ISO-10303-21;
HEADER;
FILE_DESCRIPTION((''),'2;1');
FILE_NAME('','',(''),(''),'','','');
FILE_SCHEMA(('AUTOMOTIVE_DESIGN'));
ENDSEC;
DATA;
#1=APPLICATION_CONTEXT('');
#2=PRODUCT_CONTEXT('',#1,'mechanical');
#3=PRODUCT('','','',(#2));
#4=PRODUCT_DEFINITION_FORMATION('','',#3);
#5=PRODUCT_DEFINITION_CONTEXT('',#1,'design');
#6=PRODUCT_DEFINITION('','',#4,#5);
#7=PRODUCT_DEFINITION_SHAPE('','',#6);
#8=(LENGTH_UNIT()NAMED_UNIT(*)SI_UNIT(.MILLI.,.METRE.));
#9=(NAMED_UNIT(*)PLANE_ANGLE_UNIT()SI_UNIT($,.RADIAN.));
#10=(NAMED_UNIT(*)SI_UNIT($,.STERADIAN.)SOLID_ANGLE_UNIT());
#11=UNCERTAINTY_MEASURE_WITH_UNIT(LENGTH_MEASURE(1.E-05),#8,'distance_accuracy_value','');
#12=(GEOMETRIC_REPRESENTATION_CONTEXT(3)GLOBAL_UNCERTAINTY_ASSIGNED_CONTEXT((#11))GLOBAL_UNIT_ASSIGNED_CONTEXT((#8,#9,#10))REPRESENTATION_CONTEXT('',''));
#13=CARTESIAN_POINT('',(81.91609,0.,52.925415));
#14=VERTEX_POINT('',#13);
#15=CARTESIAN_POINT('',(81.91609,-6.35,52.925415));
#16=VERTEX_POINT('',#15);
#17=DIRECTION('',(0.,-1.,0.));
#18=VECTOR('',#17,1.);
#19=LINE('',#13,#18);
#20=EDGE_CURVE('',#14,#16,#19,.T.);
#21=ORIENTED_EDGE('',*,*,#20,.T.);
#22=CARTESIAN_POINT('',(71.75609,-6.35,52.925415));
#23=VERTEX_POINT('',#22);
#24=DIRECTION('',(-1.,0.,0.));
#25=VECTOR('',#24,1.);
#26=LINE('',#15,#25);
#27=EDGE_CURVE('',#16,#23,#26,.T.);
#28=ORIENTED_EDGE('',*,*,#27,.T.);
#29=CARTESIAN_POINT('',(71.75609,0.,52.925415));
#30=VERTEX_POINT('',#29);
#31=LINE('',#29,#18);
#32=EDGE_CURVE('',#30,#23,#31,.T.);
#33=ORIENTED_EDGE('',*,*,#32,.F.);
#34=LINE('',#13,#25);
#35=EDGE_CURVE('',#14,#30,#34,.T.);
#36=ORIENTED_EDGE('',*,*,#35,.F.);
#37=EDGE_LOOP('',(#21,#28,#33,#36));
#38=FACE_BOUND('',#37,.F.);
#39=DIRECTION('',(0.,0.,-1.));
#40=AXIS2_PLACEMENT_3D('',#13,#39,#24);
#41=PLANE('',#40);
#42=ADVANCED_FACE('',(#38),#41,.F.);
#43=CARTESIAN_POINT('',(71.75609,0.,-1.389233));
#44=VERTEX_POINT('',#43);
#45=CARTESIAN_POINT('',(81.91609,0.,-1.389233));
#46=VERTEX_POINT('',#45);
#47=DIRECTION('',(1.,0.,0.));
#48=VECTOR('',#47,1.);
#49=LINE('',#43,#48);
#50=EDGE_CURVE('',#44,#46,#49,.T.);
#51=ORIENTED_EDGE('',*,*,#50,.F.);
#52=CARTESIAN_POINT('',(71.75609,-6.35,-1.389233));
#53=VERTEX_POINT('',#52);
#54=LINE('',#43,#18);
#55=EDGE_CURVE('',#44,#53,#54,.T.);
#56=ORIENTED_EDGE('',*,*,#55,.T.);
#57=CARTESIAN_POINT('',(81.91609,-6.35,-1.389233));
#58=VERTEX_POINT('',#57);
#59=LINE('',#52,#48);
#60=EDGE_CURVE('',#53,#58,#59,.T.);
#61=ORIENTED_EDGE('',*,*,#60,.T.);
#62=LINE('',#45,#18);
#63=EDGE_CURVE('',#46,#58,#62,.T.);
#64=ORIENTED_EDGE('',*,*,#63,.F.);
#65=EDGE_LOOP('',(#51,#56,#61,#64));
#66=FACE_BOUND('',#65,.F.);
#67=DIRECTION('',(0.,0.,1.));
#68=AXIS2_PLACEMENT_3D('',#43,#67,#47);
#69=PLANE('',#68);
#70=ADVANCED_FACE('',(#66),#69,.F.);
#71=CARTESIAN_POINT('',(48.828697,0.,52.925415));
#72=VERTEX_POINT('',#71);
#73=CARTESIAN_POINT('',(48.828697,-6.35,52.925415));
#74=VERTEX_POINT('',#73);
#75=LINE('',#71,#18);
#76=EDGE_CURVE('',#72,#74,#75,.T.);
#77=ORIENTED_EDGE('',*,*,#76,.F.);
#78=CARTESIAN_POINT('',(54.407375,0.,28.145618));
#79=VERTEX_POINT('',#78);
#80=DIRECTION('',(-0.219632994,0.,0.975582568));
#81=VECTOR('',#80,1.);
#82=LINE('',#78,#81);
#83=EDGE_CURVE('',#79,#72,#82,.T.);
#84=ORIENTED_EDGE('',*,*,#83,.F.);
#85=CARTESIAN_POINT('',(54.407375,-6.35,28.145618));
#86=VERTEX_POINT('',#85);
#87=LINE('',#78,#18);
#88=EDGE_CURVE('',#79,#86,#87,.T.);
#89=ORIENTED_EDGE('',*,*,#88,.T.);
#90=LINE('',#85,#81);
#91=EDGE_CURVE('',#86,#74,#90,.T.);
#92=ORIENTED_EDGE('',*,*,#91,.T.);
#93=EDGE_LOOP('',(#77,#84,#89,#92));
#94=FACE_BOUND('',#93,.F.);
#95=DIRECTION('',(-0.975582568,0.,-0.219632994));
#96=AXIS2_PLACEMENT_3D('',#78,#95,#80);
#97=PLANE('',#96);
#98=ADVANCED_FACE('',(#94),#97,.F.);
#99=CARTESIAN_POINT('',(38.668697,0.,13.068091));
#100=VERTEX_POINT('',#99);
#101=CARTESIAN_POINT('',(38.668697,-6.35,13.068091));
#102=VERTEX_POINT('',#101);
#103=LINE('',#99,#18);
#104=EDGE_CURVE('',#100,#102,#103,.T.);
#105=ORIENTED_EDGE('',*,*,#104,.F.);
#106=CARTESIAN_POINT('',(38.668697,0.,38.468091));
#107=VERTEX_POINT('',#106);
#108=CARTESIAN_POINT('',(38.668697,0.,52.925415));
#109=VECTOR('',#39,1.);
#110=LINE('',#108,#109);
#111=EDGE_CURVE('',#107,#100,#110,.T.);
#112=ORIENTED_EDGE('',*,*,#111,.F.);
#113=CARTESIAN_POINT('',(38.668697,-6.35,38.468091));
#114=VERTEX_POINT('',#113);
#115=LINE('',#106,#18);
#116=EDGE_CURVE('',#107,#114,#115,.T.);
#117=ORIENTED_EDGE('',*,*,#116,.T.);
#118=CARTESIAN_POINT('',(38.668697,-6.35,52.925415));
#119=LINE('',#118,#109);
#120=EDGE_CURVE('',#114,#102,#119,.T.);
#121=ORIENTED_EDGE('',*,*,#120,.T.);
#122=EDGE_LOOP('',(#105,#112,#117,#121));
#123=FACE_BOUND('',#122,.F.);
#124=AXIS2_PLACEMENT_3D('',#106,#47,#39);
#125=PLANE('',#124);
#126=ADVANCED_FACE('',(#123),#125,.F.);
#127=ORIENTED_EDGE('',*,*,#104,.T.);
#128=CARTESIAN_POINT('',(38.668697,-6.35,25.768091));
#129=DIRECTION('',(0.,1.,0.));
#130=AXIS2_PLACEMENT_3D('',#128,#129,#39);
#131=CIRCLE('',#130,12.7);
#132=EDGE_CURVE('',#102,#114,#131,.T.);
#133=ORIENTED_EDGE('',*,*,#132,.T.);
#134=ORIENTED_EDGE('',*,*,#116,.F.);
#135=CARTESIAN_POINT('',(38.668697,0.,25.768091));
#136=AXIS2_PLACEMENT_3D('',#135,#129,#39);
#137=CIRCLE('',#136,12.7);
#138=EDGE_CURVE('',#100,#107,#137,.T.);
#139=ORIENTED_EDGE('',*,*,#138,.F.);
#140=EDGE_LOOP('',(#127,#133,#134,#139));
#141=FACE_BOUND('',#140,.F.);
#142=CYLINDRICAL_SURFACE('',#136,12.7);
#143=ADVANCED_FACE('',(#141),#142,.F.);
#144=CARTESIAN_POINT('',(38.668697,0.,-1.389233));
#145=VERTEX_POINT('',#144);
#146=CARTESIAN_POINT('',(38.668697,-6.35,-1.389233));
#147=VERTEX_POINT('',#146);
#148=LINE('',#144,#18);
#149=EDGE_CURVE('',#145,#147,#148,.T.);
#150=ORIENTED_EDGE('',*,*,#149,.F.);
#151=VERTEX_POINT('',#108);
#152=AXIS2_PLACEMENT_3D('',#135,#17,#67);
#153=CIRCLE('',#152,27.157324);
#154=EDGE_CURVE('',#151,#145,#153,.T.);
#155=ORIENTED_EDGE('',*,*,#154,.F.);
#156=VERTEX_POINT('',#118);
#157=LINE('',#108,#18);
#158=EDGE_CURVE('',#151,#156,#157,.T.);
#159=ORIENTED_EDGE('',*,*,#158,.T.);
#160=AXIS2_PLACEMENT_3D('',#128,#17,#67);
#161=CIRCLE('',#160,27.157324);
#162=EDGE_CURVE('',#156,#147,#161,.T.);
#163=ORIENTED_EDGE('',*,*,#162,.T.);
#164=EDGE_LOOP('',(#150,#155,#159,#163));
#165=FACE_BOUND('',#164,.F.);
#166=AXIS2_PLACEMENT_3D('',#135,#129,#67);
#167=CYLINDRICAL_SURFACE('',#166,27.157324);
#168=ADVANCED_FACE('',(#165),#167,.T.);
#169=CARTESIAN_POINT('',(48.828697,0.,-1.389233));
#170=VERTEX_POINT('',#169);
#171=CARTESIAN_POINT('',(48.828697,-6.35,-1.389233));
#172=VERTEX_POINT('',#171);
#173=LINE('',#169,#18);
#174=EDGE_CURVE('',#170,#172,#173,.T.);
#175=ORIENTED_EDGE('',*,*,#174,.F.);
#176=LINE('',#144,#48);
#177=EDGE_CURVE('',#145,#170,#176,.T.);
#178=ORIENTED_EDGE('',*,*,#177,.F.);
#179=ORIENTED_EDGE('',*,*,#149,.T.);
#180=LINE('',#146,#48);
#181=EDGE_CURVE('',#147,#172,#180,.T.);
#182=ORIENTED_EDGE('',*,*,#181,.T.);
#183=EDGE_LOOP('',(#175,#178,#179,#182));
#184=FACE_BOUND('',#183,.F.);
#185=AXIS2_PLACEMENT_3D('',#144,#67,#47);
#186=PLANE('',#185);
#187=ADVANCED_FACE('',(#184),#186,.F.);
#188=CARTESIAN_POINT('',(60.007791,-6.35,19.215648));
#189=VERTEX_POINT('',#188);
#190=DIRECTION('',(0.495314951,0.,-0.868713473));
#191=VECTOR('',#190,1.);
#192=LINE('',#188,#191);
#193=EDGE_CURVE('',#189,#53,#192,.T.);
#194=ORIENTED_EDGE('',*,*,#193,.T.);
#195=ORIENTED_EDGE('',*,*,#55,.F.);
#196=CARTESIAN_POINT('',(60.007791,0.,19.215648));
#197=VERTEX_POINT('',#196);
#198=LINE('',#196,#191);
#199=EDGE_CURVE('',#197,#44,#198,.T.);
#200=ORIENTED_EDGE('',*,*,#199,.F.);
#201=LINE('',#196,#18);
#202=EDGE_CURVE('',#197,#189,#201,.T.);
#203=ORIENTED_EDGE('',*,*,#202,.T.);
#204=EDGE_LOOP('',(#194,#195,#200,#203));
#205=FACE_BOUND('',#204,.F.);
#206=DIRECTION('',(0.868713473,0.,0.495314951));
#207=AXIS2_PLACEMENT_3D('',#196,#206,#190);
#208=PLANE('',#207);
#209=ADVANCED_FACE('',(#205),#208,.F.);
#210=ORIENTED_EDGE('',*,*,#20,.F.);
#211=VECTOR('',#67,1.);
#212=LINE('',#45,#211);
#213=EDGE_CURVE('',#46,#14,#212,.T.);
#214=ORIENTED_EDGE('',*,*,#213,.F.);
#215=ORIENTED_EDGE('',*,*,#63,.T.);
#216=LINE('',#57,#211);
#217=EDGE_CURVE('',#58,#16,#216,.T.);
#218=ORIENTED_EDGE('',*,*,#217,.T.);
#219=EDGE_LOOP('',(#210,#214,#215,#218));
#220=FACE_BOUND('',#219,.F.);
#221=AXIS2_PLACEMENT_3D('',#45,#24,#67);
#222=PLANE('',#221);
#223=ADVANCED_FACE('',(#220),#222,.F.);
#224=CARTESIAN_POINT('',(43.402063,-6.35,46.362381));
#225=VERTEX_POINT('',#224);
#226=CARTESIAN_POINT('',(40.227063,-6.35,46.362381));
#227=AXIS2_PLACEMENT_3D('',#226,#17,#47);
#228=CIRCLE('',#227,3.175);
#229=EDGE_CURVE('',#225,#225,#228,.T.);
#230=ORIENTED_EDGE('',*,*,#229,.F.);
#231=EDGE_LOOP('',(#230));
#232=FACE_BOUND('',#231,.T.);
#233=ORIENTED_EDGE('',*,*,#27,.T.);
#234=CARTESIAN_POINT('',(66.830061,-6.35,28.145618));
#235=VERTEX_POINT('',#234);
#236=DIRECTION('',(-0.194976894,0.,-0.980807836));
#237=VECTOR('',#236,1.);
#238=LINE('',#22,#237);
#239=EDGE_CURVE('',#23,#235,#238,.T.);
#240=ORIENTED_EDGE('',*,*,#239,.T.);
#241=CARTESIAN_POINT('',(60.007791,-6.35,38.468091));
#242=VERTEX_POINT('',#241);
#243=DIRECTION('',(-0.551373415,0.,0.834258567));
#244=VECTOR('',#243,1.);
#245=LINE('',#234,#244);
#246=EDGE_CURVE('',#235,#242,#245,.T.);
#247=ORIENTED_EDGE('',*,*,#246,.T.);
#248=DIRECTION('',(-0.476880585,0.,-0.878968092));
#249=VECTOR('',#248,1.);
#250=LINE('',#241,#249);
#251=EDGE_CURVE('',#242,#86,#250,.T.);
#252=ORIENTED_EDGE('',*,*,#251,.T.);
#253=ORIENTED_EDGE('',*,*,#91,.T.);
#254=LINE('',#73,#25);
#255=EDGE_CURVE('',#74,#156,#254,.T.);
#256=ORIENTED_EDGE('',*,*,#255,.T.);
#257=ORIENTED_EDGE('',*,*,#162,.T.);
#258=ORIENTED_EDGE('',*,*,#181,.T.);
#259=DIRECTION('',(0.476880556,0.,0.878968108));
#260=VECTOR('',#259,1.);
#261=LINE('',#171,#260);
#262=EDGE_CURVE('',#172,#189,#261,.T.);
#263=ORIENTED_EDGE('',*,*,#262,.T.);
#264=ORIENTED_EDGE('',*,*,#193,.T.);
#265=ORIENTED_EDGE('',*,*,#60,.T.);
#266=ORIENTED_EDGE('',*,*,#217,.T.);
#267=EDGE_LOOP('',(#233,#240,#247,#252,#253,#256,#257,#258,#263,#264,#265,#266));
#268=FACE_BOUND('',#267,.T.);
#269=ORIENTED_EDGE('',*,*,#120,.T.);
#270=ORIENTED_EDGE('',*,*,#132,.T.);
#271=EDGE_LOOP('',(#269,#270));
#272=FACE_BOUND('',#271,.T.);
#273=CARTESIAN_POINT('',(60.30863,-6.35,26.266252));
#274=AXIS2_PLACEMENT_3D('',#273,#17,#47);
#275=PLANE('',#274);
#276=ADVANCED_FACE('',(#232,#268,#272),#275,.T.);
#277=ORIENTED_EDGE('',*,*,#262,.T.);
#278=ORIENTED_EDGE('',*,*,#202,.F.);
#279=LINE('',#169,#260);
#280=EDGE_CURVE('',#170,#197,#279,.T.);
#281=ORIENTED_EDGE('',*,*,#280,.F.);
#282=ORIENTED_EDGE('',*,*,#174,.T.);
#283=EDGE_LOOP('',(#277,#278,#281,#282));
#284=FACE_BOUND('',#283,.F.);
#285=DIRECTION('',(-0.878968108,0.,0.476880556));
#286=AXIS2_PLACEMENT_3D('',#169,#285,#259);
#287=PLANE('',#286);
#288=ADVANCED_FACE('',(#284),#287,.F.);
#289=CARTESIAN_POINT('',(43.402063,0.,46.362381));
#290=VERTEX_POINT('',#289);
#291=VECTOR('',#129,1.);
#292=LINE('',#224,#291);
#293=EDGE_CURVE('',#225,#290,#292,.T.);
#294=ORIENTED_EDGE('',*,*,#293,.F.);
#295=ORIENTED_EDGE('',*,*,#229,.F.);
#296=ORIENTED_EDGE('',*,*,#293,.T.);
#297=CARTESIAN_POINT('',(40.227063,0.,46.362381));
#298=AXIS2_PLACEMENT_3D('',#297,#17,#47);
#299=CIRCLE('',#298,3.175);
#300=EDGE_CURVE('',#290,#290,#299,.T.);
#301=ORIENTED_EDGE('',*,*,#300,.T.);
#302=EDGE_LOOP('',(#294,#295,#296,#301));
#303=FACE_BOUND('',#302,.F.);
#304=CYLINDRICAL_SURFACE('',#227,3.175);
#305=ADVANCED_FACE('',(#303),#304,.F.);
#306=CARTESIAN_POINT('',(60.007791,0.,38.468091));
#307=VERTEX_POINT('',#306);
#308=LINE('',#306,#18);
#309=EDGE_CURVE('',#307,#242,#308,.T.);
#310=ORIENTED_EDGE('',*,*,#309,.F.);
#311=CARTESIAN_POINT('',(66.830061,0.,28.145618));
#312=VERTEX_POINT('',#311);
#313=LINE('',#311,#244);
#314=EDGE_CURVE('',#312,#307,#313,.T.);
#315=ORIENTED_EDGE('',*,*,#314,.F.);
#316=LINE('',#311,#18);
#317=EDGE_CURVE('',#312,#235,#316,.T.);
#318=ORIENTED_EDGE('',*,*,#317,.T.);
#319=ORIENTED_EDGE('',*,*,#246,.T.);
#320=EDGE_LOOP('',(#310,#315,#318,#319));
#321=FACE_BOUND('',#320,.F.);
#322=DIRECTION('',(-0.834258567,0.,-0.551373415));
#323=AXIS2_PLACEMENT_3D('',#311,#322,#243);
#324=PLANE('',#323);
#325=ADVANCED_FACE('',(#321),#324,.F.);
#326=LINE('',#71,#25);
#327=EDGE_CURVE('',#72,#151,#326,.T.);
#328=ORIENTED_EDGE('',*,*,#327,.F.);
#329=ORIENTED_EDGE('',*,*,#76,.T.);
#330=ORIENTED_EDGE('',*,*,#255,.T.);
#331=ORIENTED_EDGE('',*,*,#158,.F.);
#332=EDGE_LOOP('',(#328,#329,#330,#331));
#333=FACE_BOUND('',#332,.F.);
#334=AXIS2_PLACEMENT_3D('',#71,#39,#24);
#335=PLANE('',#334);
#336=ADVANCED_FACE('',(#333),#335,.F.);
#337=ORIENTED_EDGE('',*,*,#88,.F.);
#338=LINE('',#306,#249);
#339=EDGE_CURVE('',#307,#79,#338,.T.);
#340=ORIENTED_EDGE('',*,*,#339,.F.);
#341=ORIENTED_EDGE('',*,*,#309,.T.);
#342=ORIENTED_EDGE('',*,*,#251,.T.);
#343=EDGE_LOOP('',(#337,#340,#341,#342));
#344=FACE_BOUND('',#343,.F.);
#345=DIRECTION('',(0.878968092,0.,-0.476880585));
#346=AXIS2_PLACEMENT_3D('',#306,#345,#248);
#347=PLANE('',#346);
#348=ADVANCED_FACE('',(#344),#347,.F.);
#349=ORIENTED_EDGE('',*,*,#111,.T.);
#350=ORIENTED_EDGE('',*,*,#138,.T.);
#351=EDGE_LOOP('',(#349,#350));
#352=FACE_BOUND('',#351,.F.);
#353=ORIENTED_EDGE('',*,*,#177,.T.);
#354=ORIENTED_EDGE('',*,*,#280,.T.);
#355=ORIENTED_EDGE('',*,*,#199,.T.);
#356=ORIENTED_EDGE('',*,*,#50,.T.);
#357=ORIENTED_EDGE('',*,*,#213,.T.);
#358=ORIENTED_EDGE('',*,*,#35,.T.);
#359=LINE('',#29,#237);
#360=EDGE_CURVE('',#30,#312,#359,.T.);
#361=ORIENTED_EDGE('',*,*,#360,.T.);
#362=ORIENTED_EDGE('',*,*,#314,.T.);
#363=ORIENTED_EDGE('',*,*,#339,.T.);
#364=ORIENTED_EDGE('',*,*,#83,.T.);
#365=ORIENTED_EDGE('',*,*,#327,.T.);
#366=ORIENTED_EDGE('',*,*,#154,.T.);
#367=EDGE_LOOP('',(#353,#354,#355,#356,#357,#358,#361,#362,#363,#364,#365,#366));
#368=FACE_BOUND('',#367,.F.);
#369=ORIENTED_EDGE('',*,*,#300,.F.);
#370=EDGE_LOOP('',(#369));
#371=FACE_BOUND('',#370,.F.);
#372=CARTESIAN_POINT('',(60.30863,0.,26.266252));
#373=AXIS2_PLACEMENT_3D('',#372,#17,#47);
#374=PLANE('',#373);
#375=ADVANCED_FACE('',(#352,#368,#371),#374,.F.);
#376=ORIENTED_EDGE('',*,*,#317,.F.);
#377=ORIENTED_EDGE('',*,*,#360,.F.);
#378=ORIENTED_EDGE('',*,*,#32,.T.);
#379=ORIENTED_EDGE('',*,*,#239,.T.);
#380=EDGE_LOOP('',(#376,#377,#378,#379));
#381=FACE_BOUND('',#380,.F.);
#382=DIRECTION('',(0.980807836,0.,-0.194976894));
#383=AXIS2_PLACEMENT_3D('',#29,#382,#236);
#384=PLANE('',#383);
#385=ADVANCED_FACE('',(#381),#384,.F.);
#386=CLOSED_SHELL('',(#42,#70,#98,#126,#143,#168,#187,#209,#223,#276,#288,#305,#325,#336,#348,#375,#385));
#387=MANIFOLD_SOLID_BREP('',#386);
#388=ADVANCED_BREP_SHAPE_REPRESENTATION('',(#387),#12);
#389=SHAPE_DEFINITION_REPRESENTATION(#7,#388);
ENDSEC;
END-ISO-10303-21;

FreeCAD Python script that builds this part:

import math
import FreeCAD as App
import Part
import Sketcher

V = App.Vector
Q = App.Units.Quantity

doc = App.newDocument("Part")
body = doc.addObject("PartDesign::Body", "Body")

# Sketch on XZ plane
sketch1 = doc.addObject("Sketcher::SketchObject", "Sketch")
body.addObject(sketch1)
sketch1.AttachmentSupport = (doc.XZ_Plane, [""])
sketch1.MapMode = "FlatFace"
sketch1.addGeometry([
    Part.LineSegment(V(48.828697, 52.925415, 0), V(38.668697, 52.925415, 0)),  # 0
    Part.ArcOfCircle(Part.Circle(V(38.668697, 25.768091, 0), V(0, 0, 1), 27.157324), math.radians(90), math.radians(270)),  # 1
    Part.LineSegment(V(38.668697, -1.389233, 0), V(48.828697, -1.389233, 0)),  # 2
    Part.LineSegment(V(48.828697, -1.389233, 0), V(60.007791, 19.215648, 0)),  # 3
    Part.LineSegment(V(60.007791, 19.215648, 0), V(71.75609, -1.389233, 0)),  # 4
    Part.LineSegment(V(71.75609, -1.389233, 0), V(81.91609, -1.389233, 0)),  # 5
    Part.LineSegment(V(81.91609, -1.389233, 0), V(81.91609, 52.925415, 0)),  # 6
    Part.LineSegment(V(81.91609, 52.925415, 0), V(71.75609, 52.925415, 0)),  # 7
    Part.LineSegment(V(71.75609, 52.925415, 0), V(66.830061, 28.145618, 0)),  # 8
    Part.LineSegment(V(66.830061, 28.145618, 0), V(60.007791, 38.468091, 0)),  # 9
    Part.LineSegment(V(60.007791, 38.468091, 0), V(54.407375, 28.145618, 0)),  # 10
    Part.LineSegment(V(54.407375, 28.145618, 0), V(48.828697, 52.925415, 0)),  # 11
    Part.LineSegment(V(38.668697, 38.468091, 0), V(38.668697, 13.068091, 0)),  # 12
    Part.ArcOfCircle(Part.Circle(V(38.668697, 25.768091, 0), V(0, 0, 1), 12.7), math.radians(90), math.radians(270)),  # 13
], False)
sketch1.addConstraint([
    Sketcher.Constraint("Tangent", 0, 2, 1, 1),
    Sketcher.Constraint("Tangent", 1, 2, 2, 1),
    Sketcher.Constraint("Coincident", 2, 2, 3, 1),
    Sketcher.Constraint("Coincident", 3, 2, 4, 1),
    Sketcher.Constraint("Coincident", 4, 2, 5, 1),
    Sketcher.Constraint("Coincident", 5, 2, 6, 1),
    Sketcher.Constraint("Coincident", 6, 2, 7, 1),
    Sketcher.Constraint("Coincident", 7, 2, 8, 1),
    Sketcher.Constraint("Coincident", 8, 2, 9, 1),
    Sketcher.Constraint("Coincident", 9, 2, 10, 1),
    Sketcher.Constraint("Coincident", 10, 2, 11, 1),
    Sketcher.Constraint("Coincident", 11, 2, 0, 1),
    Sketcher.Constraint("Coincident", 12, 1, 13, 1),
    Sketcher.Constraint("Coincident", 13, 2, 12, 2),
    Sketcher.Constraint("Horizontal", 0),
    Sketcher.Constraint("Horizontal", 2),
    Sketcher.Constraint("Horizontal", 5),
    Sketcher.Constraint("Vertical", 6),
    Sketcher.Constraint("Horizontal", 7),
    Sketcher.Constraint("Vertical", 12),
    Sketcher.Constraint("Coincident", 13, 3, 1, 3),
    Sketcher.Constraint("Parallel", 3, 10),
    Sketcher.Constraint("Horizontal", 2, 2, 4, 2),
    Sketcher.Constraint("Horizontal", 0, 2, 6, 2),
    Sketcher.Constraint("Horizontal", 8, 2, 10, 2),
    Sketcher.Constraint("Horizontal", 9, 2, 12, 1),
    Sketcher.Constraint("Vertical", 4, 2, 7, 2),
    Sketcher.Constraint("Vertical", 3, 2, 9, 2),
    Sketcher.Constraint("Vertical", 2, 2, 11, 2),
    Sketcher.Constraint("Vertical", 1, 2, 12, 1),
    Sketcher.Constraint("Equal", 2, 5),
    Sketcher.Constraint("Radius", 13, Q("0.5 in")),
    Sketcher.Constraint("Distance", 11, Q("1 in")),
    Sketcher.Constraint("DistanceX", 0, 2, 0, 1, Q("0.4 in")),
    Sketcher.Constraint("Radius", 1, 27.157324),
    Sketcher.Constraint("DistanceX", 3, 2, 4, 2, 11.748299),
    Sketcher.Constraint("Distance", 8, 25.264681),
    Sketcher.Constraint("Distance", 9, 12.37323),
    Sketcher.Constraint("DistanceY", -1, 1, 1, 3, 25.768091),
    Sketcher.Constraint("DistanceX", -1, 1, 3, 2, 60.007791),
    Sketcher.Constraint("DistanceY", -1, 1, 3, 2, 19.215648),
])
pad1 = doc.addObject("PartDesign::Pad", "Pad")
body.addObject(pad1)
pad1.Profile = sketch1
pad1.Length = Q("0.25 in")

# Sketch on XZ plane
sketch2 = doc.addObject("Sketcher::SketchObject", "Sketch001")
body.addObject(sketch2)
sketch2.AttachmentSupport = (doc.XZ_Plane, [""])
sketch2.MapMode = "FlatFace"
sketch2.AttachmentOffset = App.Placement(V(0, 0, 0.25 * 25.4), App.Rotation())
sketch2.addGeometry(Part.Circle(V(40.227063, 46.362381, 0), V(0, 0, 1), 3.175), False)
sketch2.addConstraint([
    Sketcher.Constraint("Diameter", 0, Q("0.25 in")),
    Sketcher.Constraint("DistanceY", -1, 1, 0, 3, 46.362381),
    Sketcher.Constraint("DistanceX", -1, 1, 0, 3, 40.227063),
])
pocket1 = doc.addObject("PartDesign::Pocket", "Pocket")
body.addObject(pocket1)
pocket1.Profile = sketch2
pocket1.Type = "ThroughAll"

doc.recompute()
